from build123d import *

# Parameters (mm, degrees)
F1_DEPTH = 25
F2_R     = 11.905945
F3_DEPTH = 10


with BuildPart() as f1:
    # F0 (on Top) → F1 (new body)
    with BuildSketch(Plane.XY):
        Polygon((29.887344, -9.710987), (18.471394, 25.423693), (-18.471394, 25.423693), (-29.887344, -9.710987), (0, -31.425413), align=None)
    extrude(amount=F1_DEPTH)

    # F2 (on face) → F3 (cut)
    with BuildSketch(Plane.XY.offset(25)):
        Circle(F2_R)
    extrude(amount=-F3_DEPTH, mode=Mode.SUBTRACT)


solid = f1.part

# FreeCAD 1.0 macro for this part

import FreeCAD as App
import Part
import Sketcher
from FreeCAD import Vector
Q = App.Units.Quantity

doc = App.newDocument("Part")
params = doc.addObject("Spreadsheet::Sheet", "Params")
for row, (alias, value) in enumerate([
    ("pad1_length", "25 mm"),
    ("pocket1_length", "10 mm"),
], start=1):
    params.set(f"A{row}", alias)
    params.set(f"B{row}", "=" + value)
    params.setAlias(f"B{row}", alias)

body = doc.addObject("PartDesign::Body", "Body")

sketch1 = doc.addObject("Sketcher::SketchObject", "Sketch")
body.addObject(sketch1)
sketch1.AttachmentSupport = (doc.XY_Plane, [""])
sketch1.MapMode = "FlatFace"
sketch1.addGeometry(Part.LineSegment(Vector(30, -10, 0), Vector(18, 25, 0)), False)
sketch1.addGeometry(Part.LineSegment(Vector(18, 25, 0), Vector(-18, 25, 0)), False)
sketch1.addGeometry(Part.LineSegment(Vector(-18, 25, 0), Vector(-30, -10, 0)), False)
sketch1.addGeometry(Part.LineSegment(Vector(-30, -10, 0), Vector(0, -31, 0)), False)
sketch1.addGeometry(Part.LineSegment(Vector(0, -31, 0), Vector(30, -10, 0)), False)
sketch1.addConstraint(Sketcher.Constraint("Coincident", 0, 2, 1, 1))
sketch1.addConstraint(Sketcher.Constraint("Coincident", 1, 2, 2, 1))
sketch1.addConstraint(Sketcher.Constraint("Coincident", 2, 2, 3, 1))
sketch1.addConstraint(Sketcher.Constraint("Coincident", 3, 2, 4, 1))
sketch1.addConstraint(Sketcher.Constraint("Coincident", 4, 2, 0, 1))
sketch1.addConstraint(Sketcher.Constraint("Horizontal", 1))
sketch1.addConstraint(Sketcher.Constraint("Symmetric", 2, 2, 4, 2, -2))
sketch1.addConstraint(Sketcher.Constraint("PointOnObject", 3, 2, -2))
sketch1.addConstraint(Sketcher.Constraint("Equal", 0, 2))
sketch1.addConstraint(Sketcher.Constraint("Equal", 2, 3))
sketch1.addConstraint(Sketcher.Constraint("Angle", 0, Q("108.000001 deg")))
sketch1.addConstraint(Sketcher.Constraint("Angle", 3, Q("-35.999999 deg")))
sketch1.addConstraint(Sketcher.Constraint("Distance", 0, 36.942789))
sketch1.addConstraint(Sketcher.Constraint("DistanceY", -1, 1, 0, 2, 25.423693))
pad1 = doc.addObject("PartDesign::Pad", "Pad")
body.addObject(pad1)
pad1.Profile = sketch1
pad1.setExpression("Length", "Params.pad1_length")

sketch2 = doc.addObject("Sketcher::SketchObject", "Sketch001")
body.addObject(sketch2)
sketch2.AttachmentSupport = (doc.XY_Plane, [""])
sketch2.MapMode = "FlatFace"
sketch2.AttachmentOffset = App.Placement(Vector(0, 0, 25), App.Rotation())
sketch2.addGeometry(Part.Circle(Vector(0, 0, 0), Vector(0, 0, 1), 12), False)
sketch2.addConstraint(Sketcher.Constraint("Coincident", 0, 3, -1, 1))
sketch2.addConstraint(Sketcher.Constraint("Diameter", 0, 23.81189))
pocket1 = doc.addObject("PartDesign::Pocket", "Pocket")
body.addObject(pocket1)
pocket1.Profile = sketch2
pocket1.setExpression("Length", "Params.pocket1_length")

doc.recompute()
